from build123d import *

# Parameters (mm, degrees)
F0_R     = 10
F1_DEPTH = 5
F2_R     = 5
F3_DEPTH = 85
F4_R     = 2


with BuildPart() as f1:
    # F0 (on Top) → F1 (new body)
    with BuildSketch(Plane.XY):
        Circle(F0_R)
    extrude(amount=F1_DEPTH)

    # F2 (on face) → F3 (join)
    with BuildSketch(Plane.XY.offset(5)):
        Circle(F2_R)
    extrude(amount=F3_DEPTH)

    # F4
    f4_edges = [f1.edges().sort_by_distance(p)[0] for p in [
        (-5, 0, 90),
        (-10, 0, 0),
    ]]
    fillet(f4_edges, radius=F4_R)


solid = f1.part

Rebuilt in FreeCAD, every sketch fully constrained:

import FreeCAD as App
import Part
import Sketcher


def edges_at(feature, points):
    """Names of the edges that pass closest to the given points."""
    edges = feature.Shape.Edges
    near = lambda p: min(range(len(edges)), key=lambda i: edges[i].distToShape(Part.Vertex(*p))[0])
    return sorted({f"Edge{near(p) + 1}" for p in points})

doc = App.newDocument("Part")
body = doc.addObject("PartDesign::Body", "Body")

sketch1 = body.newObject("Sketcher::SketchObject", "Sketch")
sketch1.AttachmentSupport = (doc.getObject("XY_Plane"), [""])
sketch1.MapMode = "FlatFace"
sketch1.addGeometry(Part.Circle(App.Vector(0, 0, 0), App.Vector(0, 0, 1), 10), False)
sketch1.addConstraint([
    Sketcher.Constraint("Coincident", 0, 3, -1, 1),
    Sketcher.Constraint("Diameter", 0, 20.0),
])
pad1 = body.newObject("PartDesign::Pad", "Pad")
pad1.Profile = sketch1
pad1.Length = 5

sketch2 = body.newObject("Sketcher::SketchObject", "Sketch001")
sketch2.AttachmentSupport = (doc.getObject("XY_Plane"), [""])
sketch2.MapMode = "FlatFace"
sketch2.AttachmentOffset = App.Placement(App.Vector(0, 0, 5), App.Rotation())
sketch2.addGeometry(Part.Circle(App.Vector(0, 0, 0), App.Vector(0, 0, 1), 5), False)
sketch2.addConstraint([
    Sketcher.Constraint("Coincident", 0, 3, -1, 1),
    Sketcher.Constraint("Diameter", 0, 10.0),
])
pad2 = body.newObject("PartDesign::Pad", "Pad001")
pad2.Profile = sketch2
pad2.Length = 85
doc.recompute()

fillet = body.newObject("PartDesign::Fillet", "Fillet")
fillet.Base = (pad2, edges_at(pad2, [(-5, 0, 90), (-10, 0, 0)]))
fillet.Radius = 2

doc.recompute()
